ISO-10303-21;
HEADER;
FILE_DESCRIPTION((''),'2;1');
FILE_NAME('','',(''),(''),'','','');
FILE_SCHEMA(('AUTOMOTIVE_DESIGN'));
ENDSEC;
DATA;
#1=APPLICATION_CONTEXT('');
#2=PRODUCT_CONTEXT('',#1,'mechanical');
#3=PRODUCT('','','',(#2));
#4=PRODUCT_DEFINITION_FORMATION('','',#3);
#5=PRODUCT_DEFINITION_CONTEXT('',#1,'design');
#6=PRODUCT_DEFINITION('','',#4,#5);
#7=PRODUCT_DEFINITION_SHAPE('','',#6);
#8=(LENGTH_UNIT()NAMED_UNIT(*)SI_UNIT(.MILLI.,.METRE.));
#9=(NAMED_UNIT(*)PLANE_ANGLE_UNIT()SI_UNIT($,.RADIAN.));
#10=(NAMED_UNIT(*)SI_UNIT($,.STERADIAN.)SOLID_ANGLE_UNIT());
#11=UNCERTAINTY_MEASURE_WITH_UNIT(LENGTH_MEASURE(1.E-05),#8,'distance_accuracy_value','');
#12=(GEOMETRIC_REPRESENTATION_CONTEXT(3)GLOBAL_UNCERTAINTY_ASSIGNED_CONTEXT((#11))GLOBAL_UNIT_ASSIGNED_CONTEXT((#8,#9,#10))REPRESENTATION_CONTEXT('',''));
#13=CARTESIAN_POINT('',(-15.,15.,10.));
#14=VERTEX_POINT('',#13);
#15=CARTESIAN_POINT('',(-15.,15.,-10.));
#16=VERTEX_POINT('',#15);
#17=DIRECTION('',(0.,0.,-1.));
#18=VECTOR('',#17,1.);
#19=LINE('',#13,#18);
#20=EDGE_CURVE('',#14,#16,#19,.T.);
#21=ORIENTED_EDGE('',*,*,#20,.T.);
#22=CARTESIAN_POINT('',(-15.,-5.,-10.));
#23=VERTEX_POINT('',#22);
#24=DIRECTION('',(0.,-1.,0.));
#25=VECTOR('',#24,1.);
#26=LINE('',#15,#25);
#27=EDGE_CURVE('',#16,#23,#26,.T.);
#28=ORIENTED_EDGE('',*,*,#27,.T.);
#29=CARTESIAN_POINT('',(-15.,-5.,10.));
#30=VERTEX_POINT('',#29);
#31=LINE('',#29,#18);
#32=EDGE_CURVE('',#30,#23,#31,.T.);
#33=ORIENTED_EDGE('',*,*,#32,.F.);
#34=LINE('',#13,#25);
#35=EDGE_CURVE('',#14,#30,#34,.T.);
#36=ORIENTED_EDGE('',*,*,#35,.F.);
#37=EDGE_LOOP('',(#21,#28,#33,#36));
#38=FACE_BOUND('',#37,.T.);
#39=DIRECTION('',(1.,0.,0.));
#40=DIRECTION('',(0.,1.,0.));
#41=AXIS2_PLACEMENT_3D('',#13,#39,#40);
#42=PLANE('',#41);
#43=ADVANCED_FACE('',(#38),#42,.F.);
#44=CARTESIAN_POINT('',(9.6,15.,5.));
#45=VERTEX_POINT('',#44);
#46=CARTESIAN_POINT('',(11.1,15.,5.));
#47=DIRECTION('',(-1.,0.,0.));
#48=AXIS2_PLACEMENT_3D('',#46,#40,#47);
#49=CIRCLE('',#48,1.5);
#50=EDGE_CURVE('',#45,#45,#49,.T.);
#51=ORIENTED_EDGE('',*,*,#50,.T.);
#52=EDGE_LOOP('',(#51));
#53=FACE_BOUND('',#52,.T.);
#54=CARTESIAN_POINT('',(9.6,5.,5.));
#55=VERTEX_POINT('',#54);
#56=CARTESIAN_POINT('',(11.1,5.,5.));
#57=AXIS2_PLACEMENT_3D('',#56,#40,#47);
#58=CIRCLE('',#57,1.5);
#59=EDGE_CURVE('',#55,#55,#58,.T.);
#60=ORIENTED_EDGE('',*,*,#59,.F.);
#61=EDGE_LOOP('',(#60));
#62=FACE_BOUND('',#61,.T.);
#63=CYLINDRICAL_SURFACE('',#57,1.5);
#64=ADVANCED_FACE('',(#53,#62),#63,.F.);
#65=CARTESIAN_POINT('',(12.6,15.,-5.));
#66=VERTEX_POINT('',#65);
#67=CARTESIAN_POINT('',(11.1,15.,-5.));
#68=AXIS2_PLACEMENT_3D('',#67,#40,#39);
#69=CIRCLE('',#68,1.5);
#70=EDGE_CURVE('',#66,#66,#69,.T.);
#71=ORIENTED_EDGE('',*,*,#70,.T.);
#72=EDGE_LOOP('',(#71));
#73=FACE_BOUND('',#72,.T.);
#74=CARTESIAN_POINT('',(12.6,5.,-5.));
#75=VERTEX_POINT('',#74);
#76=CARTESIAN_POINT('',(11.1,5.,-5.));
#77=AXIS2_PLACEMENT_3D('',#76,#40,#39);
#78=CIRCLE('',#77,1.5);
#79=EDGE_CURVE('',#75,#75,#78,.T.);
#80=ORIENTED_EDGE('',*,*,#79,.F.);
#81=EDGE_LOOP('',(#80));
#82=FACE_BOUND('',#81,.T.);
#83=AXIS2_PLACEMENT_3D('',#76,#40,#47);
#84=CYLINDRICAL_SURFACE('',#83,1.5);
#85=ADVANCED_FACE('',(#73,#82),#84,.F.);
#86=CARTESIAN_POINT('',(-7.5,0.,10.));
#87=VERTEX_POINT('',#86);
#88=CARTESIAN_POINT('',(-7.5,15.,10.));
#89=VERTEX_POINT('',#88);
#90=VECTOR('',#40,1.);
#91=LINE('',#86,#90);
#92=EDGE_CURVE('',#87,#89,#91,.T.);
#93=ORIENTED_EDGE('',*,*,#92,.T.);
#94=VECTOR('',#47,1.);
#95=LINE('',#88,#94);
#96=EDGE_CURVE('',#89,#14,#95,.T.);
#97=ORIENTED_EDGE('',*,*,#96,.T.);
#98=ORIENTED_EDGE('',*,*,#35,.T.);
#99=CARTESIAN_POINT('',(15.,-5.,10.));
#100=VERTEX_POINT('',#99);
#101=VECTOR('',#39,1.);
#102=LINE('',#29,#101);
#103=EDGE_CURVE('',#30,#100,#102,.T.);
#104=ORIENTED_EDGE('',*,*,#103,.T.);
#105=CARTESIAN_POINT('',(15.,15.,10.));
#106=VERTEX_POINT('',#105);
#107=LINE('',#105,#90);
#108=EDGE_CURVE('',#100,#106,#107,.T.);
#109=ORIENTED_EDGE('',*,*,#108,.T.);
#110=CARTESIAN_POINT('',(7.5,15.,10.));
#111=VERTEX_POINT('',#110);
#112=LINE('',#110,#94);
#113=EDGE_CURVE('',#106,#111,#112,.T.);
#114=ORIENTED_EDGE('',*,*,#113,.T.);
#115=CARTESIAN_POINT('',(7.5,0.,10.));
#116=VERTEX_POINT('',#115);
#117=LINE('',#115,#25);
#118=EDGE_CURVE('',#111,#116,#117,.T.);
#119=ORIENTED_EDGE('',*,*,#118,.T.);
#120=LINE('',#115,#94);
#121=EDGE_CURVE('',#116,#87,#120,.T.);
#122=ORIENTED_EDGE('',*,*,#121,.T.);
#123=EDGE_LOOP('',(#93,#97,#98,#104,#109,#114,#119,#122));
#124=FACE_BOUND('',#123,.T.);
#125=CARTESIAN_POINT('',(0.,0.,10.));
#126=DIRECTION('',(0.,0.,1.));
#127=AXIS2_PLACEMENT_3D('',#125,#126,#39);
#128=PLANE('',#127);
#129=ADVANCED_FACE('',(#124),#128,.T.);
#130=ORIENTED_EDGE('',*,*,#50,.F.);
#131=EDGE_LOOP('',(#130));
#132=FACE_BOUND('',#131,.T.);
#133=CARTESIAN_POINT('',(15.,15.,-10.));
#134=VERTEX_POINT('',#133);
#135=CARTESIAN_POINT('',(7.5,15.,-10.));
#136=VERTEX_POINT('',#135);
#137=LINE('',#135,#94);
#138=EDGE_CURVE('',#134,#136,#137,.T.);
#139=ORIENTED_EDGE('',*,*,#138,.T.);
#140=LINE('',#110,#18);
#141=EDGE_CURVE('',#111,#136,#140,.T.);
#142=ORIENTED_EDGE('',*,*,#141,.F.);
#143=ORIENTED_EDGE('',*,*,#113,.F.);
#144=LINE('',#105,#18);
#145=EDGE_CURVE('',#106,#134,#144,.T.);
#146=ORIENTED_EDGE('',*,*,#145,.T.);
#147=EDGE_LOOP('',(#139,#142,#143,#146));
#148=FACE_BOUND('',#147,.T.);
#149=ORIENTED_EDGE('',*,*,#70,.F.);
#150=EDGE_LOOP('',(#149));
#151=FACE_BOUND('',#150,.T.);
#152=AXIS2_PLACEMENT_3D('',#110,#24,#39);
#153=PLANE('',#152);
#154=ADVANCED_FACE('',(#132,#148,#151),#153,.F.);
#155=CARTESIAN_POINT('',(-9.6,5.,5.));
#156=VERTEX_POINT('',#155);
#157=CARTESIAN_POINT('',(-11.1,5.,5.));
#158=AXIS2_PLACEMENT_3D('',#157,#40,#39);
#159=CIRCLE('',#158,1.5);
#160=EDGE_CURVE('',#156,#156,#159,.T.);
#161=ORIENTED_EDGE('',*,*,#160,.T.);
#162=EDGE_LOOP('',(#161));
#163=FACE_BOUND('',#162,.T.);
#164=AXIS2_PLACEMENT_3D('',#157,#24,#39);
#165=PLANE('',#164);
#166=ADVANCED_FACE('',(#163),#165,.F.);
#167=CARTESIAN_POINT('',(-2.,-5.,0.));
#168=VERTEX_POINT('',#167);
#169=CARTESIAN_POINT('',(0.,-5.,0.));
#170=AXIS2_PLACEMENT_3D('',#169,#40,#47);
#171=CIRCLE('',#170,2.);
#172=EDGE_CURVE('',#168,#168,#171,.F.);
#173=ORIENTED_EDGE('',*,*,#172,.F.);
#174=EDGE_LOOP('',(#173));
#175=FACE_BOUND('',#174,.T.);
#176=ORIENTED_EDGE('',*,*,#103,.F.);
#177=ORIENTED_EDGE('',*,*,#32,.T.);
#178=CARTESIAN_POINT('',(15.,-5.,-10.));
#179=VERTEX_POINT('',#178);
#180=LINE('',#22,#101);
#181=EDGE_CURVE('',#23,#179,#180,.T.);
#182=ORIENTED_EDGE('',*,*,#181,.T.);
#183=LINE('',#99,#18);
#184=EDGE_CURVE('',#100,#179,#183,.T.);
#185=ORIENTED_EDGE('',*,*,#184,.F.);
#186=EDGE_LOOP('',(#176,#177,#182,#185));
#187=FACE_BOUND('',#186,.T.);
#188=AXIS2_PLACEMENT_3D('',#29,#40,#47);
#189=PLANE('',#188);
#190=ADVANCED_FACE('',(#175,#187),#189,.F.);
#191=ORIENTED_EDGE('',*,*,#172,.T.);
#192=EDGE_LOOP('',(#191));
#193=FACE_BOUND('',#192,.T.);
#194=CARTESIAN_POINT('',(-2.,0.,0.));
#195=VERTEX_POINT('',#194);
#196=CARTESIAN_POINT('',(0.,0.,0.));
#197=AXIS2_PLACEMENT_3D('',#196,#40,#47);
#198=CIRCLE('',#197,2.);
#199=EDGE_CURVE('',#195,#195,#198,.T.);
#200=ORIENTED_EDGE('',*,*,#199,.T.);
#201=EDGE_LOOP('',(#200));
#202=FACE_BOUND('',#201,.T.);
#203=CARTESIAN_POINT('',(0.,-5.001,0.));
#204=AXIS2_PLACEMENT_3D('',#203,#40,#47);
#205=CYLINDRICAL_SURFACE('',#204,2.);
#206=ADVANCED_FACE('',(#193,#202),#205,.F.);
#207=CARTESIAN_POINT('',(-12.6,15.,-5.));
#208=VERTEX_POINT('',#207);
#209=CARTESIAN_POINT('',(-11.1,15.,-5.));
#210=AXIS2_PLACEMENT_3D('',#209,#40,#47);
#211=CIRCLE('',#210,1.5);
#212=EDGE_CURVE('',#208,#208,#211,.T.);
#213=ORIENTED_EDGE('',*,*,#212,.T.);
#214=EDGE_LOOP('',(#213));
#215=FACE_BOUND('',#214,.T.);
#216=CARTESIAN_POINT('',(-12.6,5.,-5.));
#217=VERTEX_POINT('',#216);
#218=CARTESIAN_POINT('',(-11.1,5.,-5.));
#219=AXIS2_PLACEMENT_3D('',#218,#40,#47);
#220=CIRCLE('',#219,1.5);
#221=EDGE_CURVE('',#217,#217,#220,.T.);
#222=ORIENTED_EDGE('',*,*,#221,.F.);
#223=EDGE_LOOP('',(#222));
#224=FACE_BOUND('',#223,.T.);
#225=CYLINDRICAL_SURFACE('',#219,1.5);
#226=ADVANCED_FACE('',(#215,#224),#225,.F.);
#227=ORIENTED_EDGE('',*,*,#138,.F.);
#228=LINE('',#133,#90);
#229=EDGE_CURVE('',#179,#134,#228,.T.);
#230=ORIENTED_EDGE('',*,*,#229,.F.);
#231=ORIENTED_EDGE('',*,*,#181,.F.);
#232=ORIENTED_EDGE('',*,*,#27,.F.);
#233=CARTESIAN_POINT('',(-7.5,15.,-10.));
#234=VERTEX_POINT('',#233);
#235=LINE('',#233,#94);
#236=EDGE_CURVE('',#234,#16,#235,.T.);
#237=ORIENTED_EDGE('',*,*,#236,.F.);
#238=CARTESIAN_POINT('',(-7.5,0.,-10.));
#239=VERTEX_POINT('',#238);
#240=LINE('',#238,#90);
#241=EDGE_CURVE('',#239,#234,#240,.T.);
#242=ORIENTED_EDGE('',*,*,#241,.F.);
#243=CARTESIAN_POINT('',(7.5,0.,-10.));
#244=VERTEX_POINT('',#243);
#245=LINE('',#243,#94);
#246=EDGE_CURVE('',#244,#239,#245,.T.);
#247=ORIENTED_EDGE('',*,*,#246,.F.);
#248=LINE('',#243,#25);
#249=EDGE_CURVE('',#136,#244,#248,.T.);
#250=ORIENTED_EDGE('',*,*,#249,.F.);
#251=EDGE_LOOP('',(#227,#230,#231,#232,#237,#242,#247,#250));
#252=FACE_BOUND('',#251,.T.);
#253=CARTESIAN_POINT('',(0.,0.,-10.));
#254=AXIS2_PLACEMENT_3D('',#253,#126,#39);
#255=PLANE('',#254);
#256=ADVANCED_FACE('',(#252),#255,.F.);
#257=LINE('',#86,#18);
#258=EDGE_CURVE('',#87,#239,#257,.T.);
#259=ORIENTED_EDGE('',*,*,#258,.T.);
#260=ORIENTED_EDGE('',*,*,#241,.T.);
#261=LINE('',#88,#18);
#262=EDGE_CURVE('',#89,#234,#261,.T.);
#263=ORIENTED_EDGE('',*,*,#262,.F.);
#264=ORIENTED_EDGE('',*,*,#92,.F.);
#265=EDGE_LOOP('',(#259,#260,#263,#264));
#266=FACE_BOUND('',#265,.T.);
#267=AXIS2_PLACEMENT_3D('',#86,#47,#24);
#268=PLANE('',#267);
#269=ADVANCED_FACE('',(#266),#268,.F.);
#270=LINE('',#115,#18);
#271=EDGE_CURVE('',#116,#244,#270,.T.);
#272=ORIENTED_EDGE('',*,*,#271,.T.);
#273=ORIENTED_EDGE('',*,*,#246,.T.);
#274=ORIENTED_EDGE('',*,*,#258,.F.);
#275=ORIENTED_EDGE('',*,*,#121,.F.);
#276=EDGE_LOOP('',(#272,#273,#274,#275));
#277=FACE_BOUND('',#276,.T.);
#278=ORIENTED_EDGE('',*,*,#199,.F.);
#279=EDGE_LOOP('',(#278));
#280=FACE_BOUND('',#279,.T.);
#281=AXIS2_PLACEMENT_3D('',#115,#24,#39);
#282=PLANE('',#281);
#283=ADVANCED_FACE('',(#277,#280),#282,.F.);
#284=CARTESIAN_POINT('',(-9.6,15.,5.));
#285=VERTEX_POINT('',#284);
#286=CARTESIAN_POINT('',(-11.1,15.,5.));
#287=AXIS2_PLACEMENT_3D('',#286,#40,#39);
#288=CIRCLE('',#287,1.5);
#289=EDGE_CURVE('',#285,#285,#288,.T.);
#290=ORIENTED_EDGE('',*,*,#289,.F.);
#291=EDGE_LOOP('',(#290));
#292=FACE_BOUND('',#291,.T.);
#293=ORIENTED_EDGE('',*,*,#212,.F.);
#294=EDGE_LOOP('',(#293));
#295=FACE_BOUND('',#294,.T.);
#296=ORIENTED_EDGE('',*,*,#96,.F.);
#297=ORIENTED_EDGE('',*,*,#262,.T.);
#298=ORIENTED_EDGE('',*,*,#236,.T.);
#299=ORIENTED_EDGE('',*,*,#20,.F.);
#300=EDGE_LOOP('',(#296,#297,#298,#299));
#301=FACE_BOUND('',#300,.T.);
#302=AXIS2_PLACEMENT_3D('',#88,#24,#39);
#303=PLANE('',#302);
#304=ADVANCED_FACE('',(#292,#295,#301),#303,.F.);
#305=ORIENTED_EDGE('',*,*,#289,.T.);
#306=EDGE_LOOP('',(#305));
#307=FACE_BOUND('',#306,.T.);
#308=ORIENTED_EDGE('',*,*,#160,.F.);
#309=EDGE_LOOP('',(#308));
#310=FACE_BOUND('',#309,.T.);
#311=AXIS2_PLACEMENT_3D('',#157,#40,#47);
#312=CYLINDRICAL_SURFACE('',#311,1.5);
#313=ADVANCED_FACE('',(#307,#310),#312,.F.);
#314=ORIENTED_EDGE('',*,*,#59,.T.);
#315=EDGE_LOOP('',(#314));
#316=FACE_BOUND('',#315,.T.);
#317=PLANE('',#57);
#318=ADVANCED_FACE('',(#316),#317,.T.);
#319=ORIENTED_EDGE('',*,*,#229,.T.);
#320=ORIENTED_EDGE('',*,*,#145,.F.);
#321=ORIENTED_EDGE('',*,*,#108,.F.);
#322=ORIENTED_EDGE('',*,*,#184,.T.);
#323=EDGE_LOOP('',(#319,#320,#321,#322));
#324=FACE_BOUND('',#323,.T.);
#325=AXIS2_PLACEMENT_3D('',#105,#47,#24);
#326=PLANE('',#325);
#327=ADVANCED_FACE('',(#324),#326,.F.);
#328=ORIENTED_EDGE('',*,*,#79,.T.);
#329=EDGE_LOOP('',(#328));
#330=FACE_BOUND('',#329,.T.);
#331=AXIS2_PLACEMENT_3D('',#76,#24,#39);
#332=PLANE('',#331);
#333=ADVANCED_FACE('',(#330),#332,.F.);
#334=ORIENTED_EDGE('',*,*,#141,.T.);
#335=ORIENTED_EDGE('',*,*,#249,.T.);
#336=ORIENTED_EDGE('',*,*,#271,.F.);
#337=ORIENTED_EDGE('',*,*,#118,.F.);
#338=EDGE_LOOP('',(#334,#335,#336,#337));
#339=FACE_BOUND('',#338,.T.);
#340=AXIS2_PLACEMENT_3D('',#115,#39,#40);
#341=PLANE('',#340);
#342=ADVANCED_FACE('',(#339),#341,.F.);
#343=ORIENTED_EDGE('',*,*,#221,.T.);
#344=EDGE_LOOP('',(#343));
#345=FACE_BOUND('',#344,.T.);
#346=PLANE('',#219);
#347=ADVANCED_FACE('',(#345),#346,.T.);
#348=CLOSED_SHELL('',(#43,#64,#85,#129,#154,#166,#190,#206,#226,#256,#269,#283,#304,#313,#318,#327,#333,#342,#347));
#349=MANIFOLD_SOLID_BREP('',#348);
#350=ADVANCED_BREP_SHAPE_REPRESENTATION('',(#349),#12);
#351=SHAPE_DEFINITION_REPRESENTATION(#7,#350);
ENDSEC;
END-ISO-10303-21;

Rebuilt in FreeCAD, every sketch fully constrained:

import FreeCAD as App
import Part
import Sketcher
from FreeCAD import Vector
Q = App.Units.Quantity

doc = App.newDocument("Part")
body = doc.addObject("PartDesign::Body", "Body")

# Sketch on XY plane
sketch1 = doc.addObject("Sketcher::SketchObject", "Sketch")
body.addObject(sketch1)
sketch1.AttachmentSupport = (doc.XY_Plane, [""])
sketch1.MapMode = "FlatFace"
sketch1.addGeometry(Part.LineSegment(Vector(7.5, 0, 0), Vector(-7.5, 0, 0)), False)
sketch1.addGeometry(Part.LineSegment(Vector(-7.5, 0, 0), Vector(-7.5, 15, 0)), False)
sketch1.addGeometry(Part.LineSegment(Vector(-7.5, 15, 0), Vector(-15, 15, 0)), False)
sketch1.addGeometry(Part.LineSegment(Vector(-15, 15, 0), Vector(-15, -5, 0)), False)
sketch1.addGeometry(Part.LineSegment(Vector(-15, -5, 0), Vector(15, -5, 0)), False)
sketch1.addGeometry(Part.LineSegment(Vector(15, -5, 0), Vector(15, 15, 0)), False)
sketch1.addGeometry(Part.LineSegment(Vector(15, 15, 0), Vector(7.5, 15, 0)), False)
sketch1.addGeometry(Part.LineSegment(Vector(7.5, 15, 0), Vector(7.5, 0, 0)), False)
sketch1.addConstraint(Sketcher.Constraint("Coincident", 0, 2, 1, 1))
sketch1.addConstraint(Sketcher.Constraint("Coincident", 1, 2, 2, 1))
sketch1.addConstraint(Sketcher.Constraint("Coincident", 2, 2, 3, 1))
sketch1.addConstraint(Sketcher.Constraint("Coincident", 3, 2, 4, 1))
sketch1.addConstraint(Sketcher.Constraint("Coincident", 4, 2, 5, 1))
sketch1.addConstraint(Sketcher.Constraint("Coincident", 5, 2, 6, 1))
sketch1.addConstraint(Sketcher.Constraint("Coincident", 6, 2, 7, 1))
sketch1.addConstraint(Sketcher.Constraint("Coincident", 7, 2, 0, 1))
sketch1.addConstraint(Sketcher.Constraint("Horizontal", 0))
sketch1.addConstraint(Sketcher.Constraint("Vertical", 1))
sketch1.addConstraint(Sketcher.Constraint("Horizontal", 2))
sketch1.addConstraint(Sketcher.Constraint("Vertical", 3))
sketch1.addConstraint(Sketcher.Constraint("Horizontal", 4))
sketch1.addConstraint(Sketcher.Constraint("Vertical", 5))
sketch1.addConstraint(Sketcher.Constraint("Horizontal", 6))
sketch1.addConstraint(Sketcher.Constraint("Vertical", 7))
sketch1.addConstraint(Sketcher.Constraint("Symmetric", 0, 2, 7, 2, -1, 1))
sketch1.addConstraint(Sketcher.Constraint("Symmetric", 2, 2, 5, 2, -2))
sketch1.addConstraint(Sketcher.Constraint("Equal", 0, 1))
sketch1.addConstraint(Sketcher.Constraint("DistanceX", 0, 2, 0, 1, Q("15 mm")))
sketch1.addConstraint(Sketcher.Constraint("DistanceX", 4, 1, 4, 2, Q("30 mm")))
sketch1.addConstraint(Sketcher.Constraint("DistanceY", 3, 2, 3, 1, Q("20 mm")))
pad1 = doc.addObject("PartDesign::Pad", "Pad")
body.addObject(pad1)
pad1.Profile = sketch1
pad1.Length = 20
pad1.Midplane = True

# Sketch on XZ plane
sketch2 = doc.addObject("Sketcher::SketchObject", "Sketch001")
body.addObject(sketch2)
sketch2.AttachmentSupport = (doc.XZ_Plane, [""])
sketch2.MapMode = "FlatFace"
sketch2.AttachmentOffset = App.Placement(Vector(0, 0, -15), App.Rotation())
sketch2.addGeometry(Part.Circle(Vector(-11.1, -5, 0), Vector(0, 0, 1), 1.5), False)
sketch2.addGeometry(Part.Circle(Vector(11.1, 5, 0), Vector(0, 0, 1), 1.5), False)
sketch2.addGeometry(Part.Circle(Vector(11.1, -5, 0), Vector(0, 0, 1), 1.5), False)
sketch2.addGeometry(Part.Circle(Vector(-11.1, 5, 0), Vector(0, 0, 1), 1.5), False)
sketch2.addConstraint(Sketcher.Constraint("Equal", 0, 1))
sketch2.addConstraint(Sketcher.Constraint("Equal", 1, 2))
sketch2.addConstraint(Sketcher.Constraint("Equal", 2, 3))
sketch2.addConstraint(Sketcher.Constraint("Symmetric", 0, 3, 1, 3, -1, 1))
sketch2.addConstraint(Sketcher.Constraint("Symmetric", 2, 3, 3, 3, -1, 1))
sketch2.addConstraint(Sketcher.Constraint("Symmetric", 0, 3, 2, 3, -2))
sketch2.addConstraint(Sketcher.Constraint("Diameter", 0, Q("3 mm")))
sketch2.addConstraint(Sketcher.Constraint("DistanceY", 0, 3, -1, 1, Q("5 mm")))
sketch2.addConstraint(Sketcher.Constraint("DistanceX", 0, 3, -1, 1, Q("11.1 mm")))
pocket1 = doc.addObject("PartDesign::Pocket", "Pocket")
body.addObject(pocket1)
pocket1.Profile = sketch2
pocket1.Length = 10
pocket1.Reversed = True

# Sketch on XZ plane
sketch3 = doc.addObject("Sketcher::SketchObject", "Sketch002")
body.addObject(sketch3)
sketch3.AttachmentSupport = (doc.XZ_Plane, [""])
sketch3.MapMode = "FlatFace"
sketch3.addGeometry(Part.Circle(Vector(0, 0, 0), Vector(0, 0, 1), 2), False)
sketch3.addConstraint(Sketcher.Constraint("Coincident", 0, 3, -1, 1))
sketch3.addConstraint(Sketcher.Constraint("Diameter", 0, Q("4 mm")))
pocket2 = doc.addObject("PartDesign::Pocket", "Pocket001")
body.addObject(pocket2)
pocket2.Profile = sketch3
pocket2.Type = "UpToFirst"
pocket2.Reversed = True

doc.recompute()
